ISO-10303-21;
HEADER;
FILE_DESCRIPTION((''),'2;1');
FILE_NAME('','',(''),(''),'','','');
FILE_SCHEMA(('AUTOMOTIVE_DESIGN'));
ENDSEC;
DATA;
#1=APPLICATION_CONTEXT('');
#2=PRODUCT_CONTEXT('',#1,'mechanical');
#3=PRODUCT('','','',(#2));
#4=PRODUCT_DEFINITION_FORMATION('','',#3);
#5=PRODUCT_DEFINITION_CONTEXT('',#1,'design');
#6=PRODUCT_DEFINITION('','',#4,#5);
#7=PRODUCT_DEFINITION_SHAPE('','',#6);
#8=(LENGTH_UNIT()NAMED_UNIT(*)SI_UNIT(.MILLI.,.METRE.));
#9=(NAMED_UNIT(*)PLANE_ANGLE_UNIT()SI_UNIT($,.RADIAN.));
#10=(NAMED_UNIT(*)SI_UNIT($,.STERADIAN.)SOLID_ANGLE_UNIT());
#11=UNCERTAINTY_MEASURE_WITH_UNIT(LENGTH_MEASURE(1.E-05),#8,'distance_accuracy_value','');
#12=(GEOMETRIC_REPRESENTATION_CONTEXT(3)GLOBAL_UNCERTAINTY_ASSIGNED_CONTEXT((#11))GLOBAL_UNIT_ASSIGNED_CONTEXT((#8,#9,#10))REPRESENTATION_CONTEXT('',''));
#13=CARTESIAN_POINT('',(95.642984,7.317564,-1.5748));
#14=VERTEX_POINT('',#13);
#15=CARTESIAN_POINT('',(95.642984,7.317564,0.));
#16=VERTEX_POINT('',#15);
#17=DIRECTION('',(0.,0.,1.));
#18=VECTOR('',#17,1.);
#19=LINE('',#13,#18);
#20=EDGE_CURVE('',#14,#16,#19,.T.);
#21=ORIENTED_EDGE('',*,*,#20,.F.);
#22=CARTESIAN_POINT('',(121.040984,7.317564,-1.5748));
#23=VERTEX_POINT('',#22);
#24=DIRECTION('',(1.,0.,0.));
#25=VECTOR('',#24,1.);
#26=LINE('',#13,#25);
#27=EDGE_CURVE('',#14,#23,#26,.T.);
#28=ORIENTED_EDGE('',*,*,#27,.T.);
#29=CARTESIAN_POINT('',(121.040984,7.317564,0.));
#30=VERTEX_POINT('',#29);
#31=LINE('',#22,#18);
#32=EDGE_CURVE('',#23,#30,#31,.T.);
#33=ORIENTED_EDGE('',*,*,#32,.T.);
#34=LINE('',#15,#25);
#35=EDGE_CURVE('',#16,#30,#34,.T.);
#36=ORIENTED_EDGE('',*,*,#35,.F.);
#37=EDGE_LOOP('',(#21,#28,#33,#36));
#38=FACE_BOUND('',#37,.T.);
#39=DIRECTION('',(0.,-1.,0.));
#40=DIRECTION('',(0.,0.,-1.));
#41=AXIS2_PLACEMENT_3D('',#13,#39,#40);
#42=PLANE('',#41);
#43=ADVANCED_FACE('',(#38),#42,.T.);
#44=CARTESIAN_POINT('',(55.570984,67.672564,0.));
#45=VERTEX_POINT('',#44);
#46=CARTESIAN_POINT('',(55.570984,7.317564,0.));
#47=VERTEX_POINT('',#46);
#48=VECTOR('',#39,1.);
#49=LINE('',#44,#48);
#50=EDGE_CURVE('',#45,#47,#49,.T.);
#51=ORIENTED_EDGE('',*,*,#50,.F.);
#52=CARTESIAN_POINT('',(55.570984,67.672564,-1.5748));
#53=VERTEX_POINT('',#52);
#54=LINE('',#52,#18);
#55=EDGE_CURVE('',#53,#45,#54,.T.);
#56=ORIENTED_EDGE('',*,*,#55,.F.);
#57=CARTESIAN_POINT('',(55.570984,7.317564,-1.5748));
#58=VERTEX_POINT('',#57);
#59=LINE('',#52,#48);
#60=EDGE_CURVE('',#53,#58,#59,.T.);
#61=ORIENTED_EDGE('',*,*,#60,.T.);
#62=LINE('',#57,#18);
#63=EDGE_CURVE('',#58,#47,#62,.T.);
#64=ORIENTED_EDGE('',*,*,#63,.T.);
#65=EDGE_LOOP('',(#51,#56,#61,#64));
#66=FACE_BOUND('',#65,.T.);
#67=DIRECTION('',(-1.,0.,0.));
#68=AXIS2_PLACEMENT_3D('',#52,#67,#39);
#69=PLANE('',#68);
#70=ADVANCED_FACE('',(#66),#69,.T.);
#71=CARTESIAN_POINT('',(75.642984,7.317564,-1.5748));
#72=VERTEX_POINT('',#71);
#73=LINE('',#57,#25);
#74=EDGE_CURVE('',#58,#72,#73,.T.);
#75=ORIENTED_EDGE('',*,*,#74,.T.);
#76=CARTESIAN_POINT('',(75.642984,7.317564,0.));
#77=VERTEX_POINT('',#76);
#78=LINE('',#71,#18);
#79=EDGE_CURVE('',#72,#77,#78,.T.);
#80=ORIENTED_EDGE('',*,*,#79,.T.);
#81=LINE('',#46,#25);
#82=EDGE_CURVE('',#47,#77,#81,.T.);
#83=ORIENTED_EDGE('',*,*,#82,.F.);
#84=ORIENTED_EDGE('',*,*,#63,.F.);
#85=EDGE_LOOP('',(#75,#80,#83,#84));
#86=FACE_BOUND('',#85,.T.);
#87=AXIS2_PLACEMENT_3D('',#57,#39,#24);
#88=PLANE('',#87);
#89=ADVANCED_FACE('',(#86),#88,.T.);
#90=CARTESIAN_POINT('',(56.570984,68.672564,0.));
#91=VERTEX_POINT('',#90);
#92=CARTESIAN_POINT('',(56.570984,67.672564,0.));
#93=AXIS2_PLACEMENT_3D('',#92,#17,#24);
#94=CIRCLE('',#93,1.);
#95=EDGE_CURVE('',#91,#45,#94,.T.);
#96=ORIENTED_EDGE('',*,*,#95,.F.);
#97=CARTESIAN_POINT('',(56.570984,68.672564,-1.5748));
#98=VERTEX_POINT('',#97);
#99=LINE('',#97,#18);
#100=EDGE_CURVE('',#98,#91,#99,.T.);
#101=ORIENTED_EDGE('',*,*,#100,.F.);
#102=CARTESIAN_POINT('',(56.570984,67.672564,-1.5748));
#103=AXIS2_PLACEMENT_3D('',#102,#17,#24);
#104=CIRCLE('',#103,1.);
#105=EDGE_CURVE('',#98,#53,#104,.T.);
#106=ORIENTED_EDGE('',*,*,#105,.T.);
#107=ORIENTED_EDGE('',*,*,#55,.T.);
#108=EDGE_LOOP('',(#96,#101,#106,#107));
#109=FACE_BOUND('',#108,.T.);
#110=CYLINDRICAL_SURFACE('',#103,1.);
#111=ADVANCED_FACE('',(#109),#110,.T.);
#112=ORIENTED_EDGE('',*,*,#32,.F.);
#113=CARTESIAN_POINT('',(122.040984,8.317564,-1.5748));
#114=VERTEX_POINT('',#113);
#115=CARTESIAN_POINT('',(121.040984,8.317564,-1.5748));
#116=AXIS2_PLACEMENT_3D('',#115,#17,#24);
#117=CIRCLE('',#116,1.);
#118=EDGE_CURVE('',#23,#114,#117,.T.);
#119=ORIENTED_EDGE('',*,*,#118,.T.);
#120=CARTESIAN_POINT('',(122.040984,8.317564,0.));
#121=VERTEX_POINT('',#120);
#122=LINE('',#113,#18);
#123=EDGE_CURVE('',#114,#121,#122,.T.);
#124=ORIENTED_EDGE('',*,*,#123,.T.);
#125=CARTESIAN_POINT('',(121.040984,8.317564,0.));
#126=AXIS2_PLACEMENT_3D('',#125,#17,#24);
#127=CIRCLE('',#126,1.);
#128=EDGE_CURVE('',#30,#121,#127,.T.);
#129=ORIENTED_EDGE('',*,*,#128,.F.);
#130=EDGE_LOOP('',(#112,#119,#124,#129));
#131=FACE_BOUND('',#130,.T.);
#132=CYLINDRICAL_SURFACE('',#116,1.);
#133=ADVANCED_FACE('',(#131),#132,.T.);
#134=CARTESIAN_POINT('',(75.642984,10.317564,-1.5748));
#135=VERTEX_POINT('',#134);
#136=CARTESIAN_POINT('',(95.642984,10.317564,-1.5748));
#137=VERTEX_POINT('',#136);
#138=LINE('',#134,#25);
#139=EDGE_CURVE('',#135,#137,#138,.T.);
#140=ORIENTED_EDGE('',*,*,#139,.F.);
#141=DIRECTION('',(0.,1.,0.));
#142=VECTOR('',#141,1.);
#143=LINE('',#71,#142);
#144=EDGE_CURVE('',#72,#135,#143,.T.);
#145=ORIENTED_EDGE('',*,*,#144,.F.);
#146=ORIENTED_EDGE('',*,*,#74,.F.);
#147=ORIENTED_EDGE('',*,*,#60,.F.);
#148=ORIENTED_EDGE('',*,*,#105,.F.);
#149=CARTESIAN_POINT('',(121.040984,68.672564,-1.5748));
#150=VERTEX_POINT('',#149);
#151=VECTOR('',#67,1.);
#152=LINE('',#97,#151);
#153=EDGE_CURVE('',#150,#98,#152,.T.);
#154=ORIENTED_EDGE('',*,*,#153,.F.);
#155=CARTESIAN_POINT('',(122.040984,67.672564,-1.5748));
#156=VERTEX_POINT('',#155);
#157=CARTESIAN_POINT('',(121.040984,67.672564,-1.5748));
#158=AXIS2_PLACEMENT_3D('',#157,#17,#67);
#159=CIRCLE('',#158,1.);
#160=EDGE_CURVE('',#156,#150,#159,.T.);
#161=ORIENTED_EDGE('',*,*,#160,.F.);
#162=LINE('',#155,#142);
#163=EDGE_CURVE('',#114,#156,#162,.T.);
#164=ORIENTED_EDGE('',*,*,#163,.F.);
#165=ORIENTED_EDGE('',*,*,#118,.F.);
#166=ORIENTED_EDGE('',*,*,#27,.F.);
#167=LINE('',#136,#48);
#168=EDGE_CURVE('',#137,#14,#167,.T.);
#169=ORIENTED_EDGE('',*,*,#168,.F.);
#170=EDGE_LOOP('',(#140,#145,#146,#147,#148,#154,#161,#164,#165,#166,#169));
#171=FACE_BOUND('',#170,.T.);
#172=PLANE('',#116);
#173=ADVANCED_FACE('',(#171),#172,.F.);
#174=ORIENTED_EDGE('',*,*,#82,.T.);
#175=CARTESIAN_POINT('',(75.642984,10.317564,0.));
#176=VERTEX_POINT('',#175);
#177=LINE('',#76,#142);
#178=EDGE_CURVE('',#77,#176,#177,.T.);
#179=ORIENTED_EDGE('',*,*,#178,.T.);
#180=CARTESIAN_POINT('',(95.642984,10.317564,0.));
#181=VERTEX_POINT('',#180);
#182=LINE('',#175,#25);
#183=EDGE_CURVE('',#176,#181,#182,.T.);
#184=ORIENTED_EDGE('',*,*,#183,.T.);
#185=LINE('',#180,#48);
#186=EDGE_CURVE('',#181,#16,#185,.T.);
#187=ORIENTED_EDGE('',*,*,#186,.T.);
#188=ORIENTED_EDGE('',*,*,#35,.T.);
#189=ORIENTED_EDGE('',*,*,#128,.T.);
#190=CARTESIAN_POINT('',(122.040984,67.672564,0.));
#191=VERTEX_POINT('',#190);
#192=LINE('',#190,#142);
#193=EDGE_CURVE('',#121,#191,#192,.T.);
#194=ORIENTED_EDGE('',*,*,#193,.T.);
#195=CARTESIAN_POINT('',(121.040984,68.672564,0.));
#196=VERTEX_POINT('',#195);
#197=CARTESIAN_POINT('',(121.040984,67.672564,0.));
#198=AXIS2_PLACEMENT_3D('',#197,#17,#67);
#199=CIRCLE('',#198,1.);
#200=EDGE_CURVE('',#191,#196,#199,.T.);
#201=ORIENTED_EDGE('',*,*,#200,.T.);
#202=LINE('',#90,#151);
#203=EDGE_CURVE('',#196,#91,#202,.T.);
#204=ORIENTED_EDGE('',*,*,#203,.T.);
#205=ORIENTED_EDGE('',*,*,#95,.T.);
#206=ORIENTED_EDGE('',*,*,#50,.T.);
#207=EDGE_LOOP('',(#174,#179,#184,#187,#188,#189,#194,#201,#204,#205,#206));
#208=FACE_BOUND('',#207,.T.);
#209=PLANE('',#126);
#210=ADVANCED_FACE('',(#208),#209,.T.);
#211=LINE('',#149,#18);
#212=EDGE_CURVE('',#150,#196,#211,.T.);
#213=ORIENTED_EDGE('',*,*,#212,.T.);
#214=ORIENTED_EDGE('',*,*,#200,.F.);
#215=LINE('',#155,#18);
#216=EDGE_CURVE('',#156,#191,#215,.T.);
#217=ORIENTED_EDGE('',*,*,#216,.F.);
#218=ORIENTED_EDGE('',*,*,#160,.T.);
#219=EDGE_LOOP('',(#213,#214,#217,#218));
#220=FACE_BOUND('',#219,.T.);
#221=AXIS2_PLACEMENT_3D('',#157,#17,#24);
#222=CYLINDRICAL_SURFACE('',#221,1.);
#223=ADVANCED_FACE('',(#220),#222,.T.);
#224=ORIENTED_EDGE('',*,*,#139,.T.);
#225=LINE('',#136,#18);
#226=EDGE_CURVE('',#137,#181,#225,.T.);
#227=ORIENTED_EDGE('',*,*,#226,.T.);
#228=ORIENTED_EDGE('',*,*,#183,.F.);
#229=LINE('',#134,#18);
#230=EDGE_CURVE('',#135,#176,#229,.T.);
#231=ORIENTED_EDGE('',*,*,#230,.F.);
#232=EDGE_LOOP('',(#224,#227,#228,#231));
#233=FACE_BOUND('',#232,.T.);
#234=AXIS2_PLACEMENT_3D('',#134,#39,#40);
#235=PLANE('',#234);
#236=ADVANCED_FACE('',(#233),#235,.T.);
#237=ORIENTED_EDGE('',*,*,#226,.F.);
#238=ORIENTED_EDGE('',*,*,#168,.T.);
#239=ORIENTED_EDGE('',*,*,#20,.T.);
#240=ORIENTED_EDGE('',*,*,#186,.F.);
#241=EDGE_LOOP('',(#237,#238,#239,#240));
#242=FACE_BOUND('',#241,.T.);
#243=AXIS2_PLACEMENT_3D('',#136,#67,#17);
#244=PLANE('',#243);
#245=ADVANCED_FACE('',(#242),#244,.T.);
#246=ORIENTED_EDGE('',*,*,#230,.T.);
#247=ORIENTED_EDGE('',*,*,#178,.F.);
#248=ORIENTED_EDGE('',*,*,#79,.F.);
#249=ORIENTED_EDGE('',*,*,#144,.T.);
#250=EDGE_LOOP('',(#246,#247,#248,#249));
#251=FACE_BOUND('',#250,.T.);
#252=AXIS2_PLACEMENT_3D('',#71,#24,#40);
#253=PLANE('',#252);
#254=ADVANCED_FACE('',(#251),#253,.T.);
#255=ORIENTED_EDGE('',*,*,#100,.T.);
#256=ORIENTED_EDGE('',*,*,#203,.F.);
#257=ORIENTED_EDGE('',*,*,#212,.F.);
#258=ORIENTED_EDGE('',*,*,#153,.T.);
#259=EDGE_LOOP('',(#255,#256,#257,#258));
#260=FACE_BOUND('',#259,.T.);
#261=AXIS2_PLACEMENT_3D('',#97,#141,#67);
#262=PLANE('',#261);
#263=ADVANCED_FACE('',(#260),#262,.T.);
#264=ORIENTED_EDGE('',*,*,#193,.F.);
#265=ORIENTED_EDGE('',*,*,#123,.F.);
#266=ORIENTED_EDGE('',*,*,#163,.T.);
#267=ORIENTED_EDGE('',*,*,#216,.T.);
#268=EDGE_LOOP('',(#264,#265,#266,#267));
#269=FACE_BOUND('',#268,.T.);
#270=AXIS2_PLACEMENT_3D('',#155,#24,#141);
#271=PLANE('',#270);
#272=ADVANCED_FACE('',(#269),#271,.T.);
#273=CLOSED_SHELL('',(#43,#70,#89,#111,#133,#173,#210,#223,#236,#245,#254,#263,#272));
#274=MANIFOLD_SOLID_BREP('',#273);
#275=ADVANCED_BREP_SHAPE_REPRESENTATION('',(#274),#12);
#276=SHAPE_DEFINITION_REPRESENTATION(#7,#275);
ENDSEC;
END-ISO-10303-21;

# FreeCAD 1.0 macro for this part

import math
import FreeCAD as App
import Part
import Sketcher
Q = App.Units.Quantity

doc = App.newDocument("Part")
body = doc.addObject("PartDesign::Body", "Body")

sketch1 = body.newObject("Sketcher::SketchObject", "Sketch")
sketch1.AttachmentSupport = (doc.getObject("XY_Plane"), [""])
sketch1.MapMode = "FlatFace"
sketch1.addGeometry([
    Part.LineSegment(App.Vector(75.6, 7.3, 0), App.Vector(75.6, 10.3, 0)),
    Part.LineSegment(App.Vector(75.6, 10.3, 0), App.Vector(95.6, 10.3, 0)),
    Part.LineSegment(App.Vector(95.6, 10.3, 0), App.Vector(95.6, 7.3, 0)),
    Part.LineSegment(App.Vector(95.6, 7.3, 0), App.Vector(121, 7.3, 0)),
    Part.ArcOfCircle(Part.Circle(App.Vector(121, 8.3, 0), App.Vector(0, 0, 1), 1), math.radians(-90), math.radians(0)),
    Part.LineSegment(App.Vector(122, 8.3, 0), App.Vector(122, 67.7, 0)),
    Part.ArcOfCircle(Part.Circle(App.Vector(121, 67.7, 0), App.Vector(0, 0, 1), 1), math.radians(0), math.radians(90)),
    Part.LineSegment(App.Vector(121, 68.7, 0), App.Vector(56.6, 68.7, 0)),
    Part.ArcOfCircle(Part.Circle(App.Vector(56.6, 67.7, 0), App.Vector(0, 0, 1), 1), math.radians(90), math.radians(180)),
    Part.LineSegment(App.Vector(55.6, 67.7, 0), App.Vector(55.6, 7.3, 0)),
    Part.LineSegment(App.Vector(55.6, 7.3, 0), App.Vector(75.6, 7.3, 0)),
], False)
sketch1.addConstraint([
    Sketcher.Constraint("Coincident", 0, 2, 1, 1),
    Sketcher.Constraint("Coincident", 1, 2, 2, 1),
    Sketcher.Constraint("Coincident", 2, 2, 3, 1),
    Sketcher.Constraint("Tangent", 3, 2, 4, 1),
    Sketcher.Constraint("Tangent", 4, 2, 5, 1),
    Sketcher.Constraint("Tangent", 5, 2, 6, 1),
    Sketcher.Constraint("Tangent", 6, 2, 7, 1),
    Sketcher.Constraint("Tangent", 7, 2, 8, 1),
    Sketcher.Constraint("Tangent", 8, 2, 9, 1),
    Sketcher.Constraint("Coincident", 9, 2, 10, 1),
    Sketcher.Constraint("Coincident", 10, 2, 0, 1),
    Sketcher.Constraint("Vertical", 0),
    Sketcher.Constraint("Horizontal", 1),
    Sketcher.Constraint("Vertical", 2),
    Sketcher.Constraint("Horizontal", 3),
    Sketcher.Constraint("Vertical", 5),
    Sketcher.Constraint("Horizontal", 7),
    Sketcher.Constraint("Vertical", 9),
    Sketcher.Constraint("Horizontal", 10),
    Sketcher.Constraint("Equal", 4, 6),
    Sketcher.Constraint("Equal", 6, 8),
    Sketcher.Constraint("Horizontal", 3, 2, 9, 2),
    Sketcher.Constraint("Radius", 4, Q("1 mm")),
    Sketcher.Constraint("DistanceX", 1, 1, 1, 2, Q("20 mm")),
    Sketcher.Constraint("DistanceY", 0, 1, 0, 2, Q("3 mm")),
    Sketcher.Constraint("DistanceX", 7, 2, 7, 1, Q("64.47 mm")),
    Sketcher.Constraint("DistanceX", 3, 1, 3, 2, Q("25.398 mm")),
    Sketcher.Constraint("DistanceY", 5, 1, 5, 2, Q("59.355 mm")),
    Sketcher.Constraint("DistanceX", -1, 1, 4, 3, Q("121.040984 mm")),
    Sketcher.Constraint("DistanceY", -1, 1, 4, 3, Q("8.317564 mm")),
])
pad1 = body.newObject("PartDesign::Pad", "Pad")
pad1.Profile = sketch1
pad1.Length = 1.5748
pad1.Reversed = True

doc.recompute()
